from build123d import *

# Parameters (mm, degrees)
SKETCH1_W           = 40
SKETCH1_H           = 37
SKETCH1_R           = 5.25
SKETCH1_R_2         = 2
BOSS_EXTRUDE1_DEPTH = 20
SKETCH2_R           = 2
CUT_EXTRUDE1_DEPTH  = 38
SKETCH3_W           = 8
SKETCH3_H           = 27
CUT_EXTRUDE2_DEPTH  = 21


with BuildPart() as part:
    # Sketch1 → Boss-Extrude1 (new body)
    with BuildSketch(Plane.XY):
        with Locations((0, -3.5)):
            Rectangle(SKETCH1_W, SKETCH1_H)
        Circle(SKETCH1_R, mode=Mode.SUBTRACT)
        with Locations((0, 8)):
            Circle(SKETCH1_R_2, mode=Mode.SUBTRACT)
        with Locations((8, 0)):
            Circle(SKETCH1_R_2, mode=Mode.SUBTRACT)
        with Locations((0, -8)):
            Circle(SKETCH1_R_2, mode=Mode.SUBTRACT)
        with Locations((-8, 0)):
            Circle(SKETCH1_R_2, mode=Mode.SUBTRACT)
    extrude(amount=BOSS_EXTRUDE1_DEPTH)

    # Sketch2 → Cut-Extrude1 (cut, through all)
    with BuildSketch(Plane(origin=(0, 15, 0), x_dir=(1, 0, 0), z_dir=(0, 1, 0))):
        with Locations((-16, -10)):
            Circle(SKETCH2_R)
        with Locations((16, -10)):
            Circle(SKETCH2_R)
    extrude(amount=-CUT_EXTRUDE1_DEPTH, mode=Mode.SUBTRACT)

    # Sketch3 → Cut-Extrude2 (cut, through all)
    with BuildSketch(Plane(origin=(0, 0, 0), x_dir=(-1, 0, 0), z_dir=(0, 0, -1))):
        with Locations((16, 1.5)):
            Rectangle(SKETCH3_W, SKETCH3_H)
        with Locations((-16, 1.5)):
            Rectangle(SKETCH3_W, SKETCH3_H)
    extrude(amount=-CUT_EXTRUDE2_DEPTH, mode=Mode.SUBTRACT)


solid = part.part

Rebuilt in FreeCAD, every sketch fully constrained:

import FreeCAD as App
import Part
import Sketcher
Q = App.Units.Quantity


def add_polygon(sketch, points):
    """Adds a closed chain of lines whose ends are joined by coincident constraints."""
    first, n = sketch.GeometryCount, len(points)
    for a, b in zip(points, points[1:] + points[:1]):
        sketch.addGeometry(Part.LineSegment(App.Vector(*a, 0), App.Vector(*b, 0)), False)
    for i in range(n):
        sketch.addConstraint(Sketcher.Constraint("Coincident", first + i, 2, first + (i + 1) % n, 1))

doc = App.newDocument("Part")
params = doc.addObject("Spreadsheet::Sheet", "Params")
for row, (alias, value) in enumerate([
    ("sketch1_diameter", "4 mm"),
    ("sketch1_diameter2", "10.5 mm"),
    ("sketch1_width", "40 mm"),
    ("sketch1_height", "37 mm"),
    ("pad1_length", "20 mm"),
    ("sketch2_diameter", "4 mm"),
    ("sketch3_width", "8 mm"),
    ("sketch3_height", "27 mm"),
], start=1):
    params.set(f"A{row}", alias)
    params.set(f"B{row}", "=" + value)
    params.setAlias(f"B{row}", alias)

body = doc.addObject("PartDesign::Body", "Body")

# Sketch on XY plane
sketch1 = body.newObject("Sketcher::SketchObject", "Sketch")
sketch1.AttachmentSupport = (doc.getObject("XY_Plane"), [""])
sketch1.MapMode = "FlatFace"
add_polygon(sketch1, [(-20, 15), (-20, -22), (20, -22), (20, 15)])  # lines 0-3
sketch1.addGeometry(Part.Circle(App.Vector(0, -8, 0), App.Vector(0, 0, 1), 2), False)  # 4
sketch1.addGeometry(Part.Circle(App.Vector(-8, 0, 0), App.Vector(0, 0, 1), 2), False)  # 5
sketch1.addGeometry(Part.Circle(App.Vector(0, 0, 0), App.Vector(0, 0, 1), 5.2), False)  # 6
sketch1.addGeometry(Part.Circle(App.Vector(8, 0, 0), App.Vector(0, 0, 1), 2), False)  # 7
sketch1.addGeometry(Part.Circle(App.Vector(0, 8, 0), App.Vector(0, 0, 1), 2), False)  # 8
sketch1.addConstraint([
    Sketcher.Constraint("Vertical", 0),
    Sketcher.Constraint("Horizontal", 1),
    Sketcher.Constraint("Vertical", 2),
    Sketcher.Constraint("Horizontal", 3),
    Sketcher.Constraint("Coincident", 6, 3, -1, 1),
    Sketcher.Constraint("Equal", 4, 5),
    Sketcher.Constraint("Equal", 5, 7),
    Sketcher.Constraint("Equal", 7, 8),
    Sketcher.Constraint("Symmetric", 5, 3, 7, 3, -1, 1),
    Sketcher.Constraint("Symmetric", 4, 3, 8, 3, -1, 1),
    Sketcher.Constraint("PointOnObject", 4, 3, -2),
    Sketcher.Constraint("PointOnObject", 5, 3, -1),
    Sketcher.Constraint("Diameter", 4, Q("4 mm")),
    Sketcher.Constraint("Diameter", 6, Q("10.5 mm")),
    Sketcher.Constraint("DistanceX", 1, 1, 1, 2, Q("40 mm")),
    Sketcher.Constraint("DistanceY", 0, 2, 0, 1, Q("37 mm")),
    Sketcher.Constraint("DistanceY", 4, 3, -1, 1, Q("8 mm")),
    Sketcher.Constraint("DistanceX", 5, 3, -1, 1, Q("8 mm")),
    Sketcher.Constraint("DistanceX", 0, 2, -1, 1, Q("20 mm")),
    Sketcher.Constraint("DistanceY", 0, 2, -1, 1, Q("22 mm")),
])
sketch1.setExpression("Constraints[16]", "Params.sketch1_diameter")
sketch1.setExpression("Constraints[17]", "Params.sketch1_diameter2")
sketch1.setExpression("Constraints[18]", "Params.sketch1_width")
sketch1.setExpression("Constraints[19]", "Params.sketch1_height")
pad1 = body.newObject("PartDesign::Pad", "Pad")
pad1.Profile = sketch1
pad1.setExpression("Length", "Params.pad1_length")

# Sketch on XZ plane
sketch2 = body.newObject("Sketcher::SketchObject", "Sketch001")
sketch2.AttachmentSupport = (doc.getObject("XZ_Plane"), [""])
sketch2.MapMode = "FlatFace"
sketch2.AttachmentOffset = App.Placement(App.Vector(0, 0, -15), App.Rotation())
sketch2.addGeometry([
    Part.Circle(App.Vector(-16, 10, 0), App.Vector(0, 0, 1), 2),
    Part.Circle(App.Vector(16, 10, 0), App.Vector(0, 0, 1), 2),
], False)
sketch2.addConstraint([
    Sketcher.Constraint("Equal", 0, 1),
    Sketcher.Constraint("Symmetric", 0, 3, 1, 3, -2),
    Sketcher.Constraint("Diameter", 0, Q("4 mm")),
    Sketcher.Constraint("DistanceX", 0, 3, -1, 1, Q("16 mm")),
    Sketcher.Constraint("DistanceY", -1, 1, 0, 3, Q("10 mm")),
])
sketch2.setExpression("Constraints[2]", "Params.sketch2_diameter")
pocket1 = body.newObject("PartDesign::Pocket", "Pocket")
pocket1.Profile = sketch2
pocket1.Type = "ThroughAll"
pocket1.Reversed = True

# Sketch on XY plane
sketch3 = body.newObject("Sketcher::SketchObject", "Sketch002")
sketch3.AttachmentSupport = (doc.getObject("XY_Plane"), [""])
sketch3.MapMode = "FlatFace"
add_polygon(sketch3, [(-12, 15), (-12, -12), (-20, -12), (-20, 15)])  # lines 0-3
add_polygon(sketch3, [(20, 15), (20, -12), (12, -12), (12, 15)])  # lines 4-7
sketch3.addConstraint([
    Sketcher.Constraint("Vertical", 0),
    Sketcher.Constraint("Horizontal", 1),
    Sketcher.Constraint("Vertical", 2),
    Sketcher.Constraint("Horizontal", 3),
    Sketcher.Constraint("Vertical", 4),
    Sketcher.Constraint("Horizontal", 5),
    Sketcher.Constraint("Vertical", 6),
    Sketcher.Constraint("Horizontal", 7),
    Sketcher.Constraint("Symmetric", 1, 2, 4, 2, -2),
    Sketcher.Constraint("Symmetric", 3, 2, 6, 2, -2),
    Sketcher.Constraint("DistanceX", 1, 2, 1, 1, Q("8 mm")),
    Sketcher.Constraint("DistanceY", 0, 2, 0, 1, Q("27 mm")),
    Sketcher.Constraint("DistanceX", 0, 2, -1, 1, Q("12 mm")),
    Sketcher.Constraint("DistanceY", 0, 2, -1, 1, Q("12 mm")),
])
sketch3.setExpression("Constraints[18]", "Params.sketch3_width")
sketch3.setExpression("Constraints[19]", "Params.sketch3_height")
pocket2 = body.newObject("PartDesign::Pocket", "Pocket001")
pocket2.Profile = sketch3
pocket2.Type = "ThroughAll"
pocket2.Reversed = True

doc.recompute()
